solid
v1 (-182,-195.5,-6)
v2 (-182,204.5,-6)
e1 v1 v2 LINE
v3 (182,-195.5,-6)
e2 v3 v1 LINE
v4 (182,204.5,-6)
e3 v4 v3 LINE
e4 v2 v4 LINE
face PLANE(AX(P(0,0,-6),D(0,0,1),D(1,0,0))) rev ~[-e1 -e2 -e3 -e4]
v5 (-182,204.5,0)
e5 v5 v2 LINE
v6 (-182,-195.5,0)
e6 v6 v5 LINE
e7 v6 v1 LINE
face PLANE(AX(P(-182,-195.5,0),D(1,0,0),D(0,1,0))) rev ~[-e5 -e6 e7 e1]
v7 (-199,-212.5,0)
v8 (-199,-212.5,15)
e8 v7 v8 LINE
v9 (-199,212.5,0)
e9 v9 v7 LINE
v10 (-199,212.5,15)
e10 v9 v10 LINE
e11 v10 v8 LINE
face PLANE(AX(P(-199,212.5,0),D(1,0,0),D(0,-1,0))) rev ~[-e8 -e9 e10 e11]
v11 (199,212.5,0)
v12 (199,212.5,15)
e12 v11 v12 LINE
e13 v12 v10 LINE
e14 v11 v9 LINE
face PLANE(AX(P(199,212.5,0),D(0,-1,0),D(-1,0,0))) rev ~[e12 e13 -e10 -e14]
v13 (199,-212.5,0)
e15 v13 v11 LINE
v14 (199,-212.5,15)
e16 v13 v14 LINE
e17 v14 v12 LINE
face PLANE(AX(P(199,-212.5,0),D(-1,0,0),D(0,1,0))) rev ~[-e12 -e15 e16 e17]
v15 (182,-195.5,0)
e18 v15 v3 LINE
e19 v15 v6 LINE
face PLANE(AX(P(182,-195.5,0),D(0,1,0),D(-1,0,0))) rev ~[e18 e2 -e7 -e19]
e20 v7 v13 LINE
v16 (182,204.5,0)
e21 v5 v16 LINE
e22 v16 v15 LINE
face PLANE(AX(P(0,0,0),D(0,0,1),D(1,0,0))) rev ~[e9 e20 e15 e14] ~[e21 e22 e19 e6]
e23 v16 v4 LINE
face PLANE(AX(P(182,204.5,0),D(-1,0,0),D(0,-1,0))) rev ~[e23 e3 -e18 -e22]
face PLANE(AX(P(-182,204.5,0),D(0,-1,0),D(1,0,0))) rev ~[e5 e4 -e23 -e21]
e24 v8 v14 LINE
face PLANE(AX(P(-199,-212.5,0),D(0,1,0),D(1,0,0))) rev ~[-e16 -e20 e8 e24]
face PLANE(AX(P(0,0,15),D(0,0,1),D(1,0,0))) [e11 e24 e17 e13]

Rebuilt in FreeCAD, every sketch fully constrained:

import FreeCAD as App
import Part
import Sketcher
from FreeCAD import Vector
Q = App.Units.Quantity


def add_polygon(sketch, points):
    """Adds a closed chain of lines whose ends are joined by coincident constraints."""
    first, n = sketch.GeometryCount, len(points)
    for a, b in zip(points, points[1:] + points[:1]):
        sketch.addGeometry(Part.LineSegment(App.Vector(*a, 0), App.Vector(*b, 0)), False)
    for i in range(n):
        sketch.addConstraint(Sketcher.Constraint("Coincident", first + i, 2, first + (i + 1) % n, 1))

doc = App.newDocument("Part")
body = doc.addObject("PartDesign::Body", "Body")

sketch1 = doc.addObject("Sketcher::SketchObject", "Sketch")
body.addObject(sketch1)
sketch1.AttachmentSupport = (doc.XY_Plane, [""])
sketch1.MapMode = "FlatFace"
add_polygon(sketch1, [(-199, 212.5), (-199, -212.5), (199, -212.5), (199, 212.5)])
sketch1.addConstraint([
    Sketcher.Constraint("Vertical", 0),
    Sketcher.Constraint("Horizontal", 1),
    Sketcher.Constraint("Vertical", 2),
    Sketcher.Constraint("Horizontal", 3),
    Sketcher.Constraint("Symmetric", 0, 2, 2, 2, -1, 1),
    Sketcher.Constraint("DistanceX", 1, 1, 1, 2, Q("398 mm")),
    Sketcher.Constraint("DistanceY", 0, 2, 0, 1, Q("425 mm")),
])
pad1 = doc.addObject("PartDesign::Pad", "Pad")
body.addObject(pad1)
pad1.Profile = sketch1
pad1.Length = 15

sketch2 = doc.addObject("Sketcher::SketchObject", "Sketch001")
body.addObject(sketch2)
sketch2.AttachmentSupport = (doc.XY_Plane, [""])
sketch2.MapMode = "FlatFace"
add_polygon(sketch2, [(-182, -195.5), (182, -195.5), (182, 204.5), (-182, 204.5)])
sketch2.addConstraint([
    Sketcher.Constraint("Horizontal", 0),
    Sketcher.Constraint("Vertical", 1),
    Sketcher.Constraint("Horizontal", 2),
    Sketcher.Constraint("Vertical", 3),
    Sketcher.Constraint("DistanceX", 0, 1, 0, 2, Q("364 mm")),
    Sketcher.Constraint("DistanceY", 1, 1, 1, 2, Q("400 mm")),
    Sketcher.Constraint("DistanceX", -1, 1, 0, 2, Q("182 mm")),
    Sketcher.Constraint("DistanceY", 0, 2, -1, 1, Q("195.5 mm")),
])
pad2 = doc.addObject("PartDesign::Pad", "Pad001")
body.addObject(pad2)
pad2.Profile = sketch2
pad2.Length = 6
pad2.Reversed = True

doc.recompute()
